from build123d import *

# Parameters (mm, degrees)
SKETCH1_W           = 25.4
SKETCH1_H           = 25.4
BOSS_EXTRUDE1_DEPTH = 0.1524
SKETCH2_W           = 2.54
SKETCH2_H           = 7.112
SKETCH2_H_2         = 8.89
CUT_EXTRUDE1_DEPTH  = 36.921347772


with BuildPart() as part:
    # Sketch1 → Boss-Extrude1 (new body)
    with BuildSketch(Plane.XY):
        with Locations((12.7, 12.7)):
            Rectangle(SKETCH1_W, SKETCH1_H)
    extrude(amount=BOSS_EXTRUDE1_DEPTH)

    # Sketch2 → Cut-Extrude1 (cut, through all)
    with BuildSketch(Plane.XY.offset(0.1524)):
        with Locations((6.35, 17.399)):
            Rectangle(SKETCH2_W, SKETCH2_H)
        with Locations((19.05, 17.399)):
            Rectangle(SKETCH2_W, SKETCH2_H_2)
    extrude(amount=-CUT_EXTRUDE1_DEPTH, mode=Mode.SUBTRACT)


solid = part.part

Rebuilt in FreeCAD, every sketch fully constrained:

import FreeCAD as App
import Part
import Sketcher
from FreeCAD import Vector
Q = App.Units.Quantity

doc = App.newDocument("Part")
params = doc.addObject("Spreadsheet::Sheet", "Params")
for row, (alias, value) in enumerate([
    ("sketch1_width", "1 in"),
    ("pad1_length", "0.006 in"),
    ("sketch2_width", "0.1 in"),
    ("sketch2_height", "0.28 in"),
    ("sketch2_height2", "0.35 in"),
], start=1):
    params.set(f"A{row}", alias)
    params.set(f"B{row}", "=" + value)
    params.setAlias(f"B{row}", alias)

body = doc.addObject("PartDesign::Body", "Body")

sketch1 = doc.addObject("Sketcher::SketchObject", "Sketch")
body.addObject(sketch1)
sketch1.AttachmentSupport = (doc.XY_Plane, [""])
sketch1.MapMode = "FlatFace"
sketch1.addGeometry([
    Part.LineSegment(Vector(0, 25, 0), Vector(0, 0, 0)),
    Part.LineSegment(Vector(0, 0, 0), Vector(25, 0, 0)),
    Part.LineSegment(Vector(25, 0, 0), Vector(25, 25, 0)),
    Part.LineSegment(Vector(25, 25, 0), Vector(0, 25, 0)),
], False)
sketch1.addConstraint([
    Sketcher.Constraint("Coincident", 0, 2, 1, 1),
    Sketcher.Constraint("Coincident", 1, 2, 2, 1),
    Sketcher.Constraint("Coincident", 2, 2, 3, 1),
    Sketcher.Constraint("Coincident", 3, 2, 0, 1),
    Sketcher.Constraint("Vertical", 0),
    Sketcher.Constraint("Horizontal", 1),
    Sketcher.Constraint("Vertical", 2),
    Sketcher.Constraint("Horizontal", 3),
    Sketcher.Constraint("Coincident", 0, 2, -1, 1),
    Sketcher.Constraint("Equal", 3, 0),
    Sketcher.Constraint("DistanceX", 1, 1, 1, 2, Q("1 in")),
])
sketch1.setExpression("Constraints[10]", "Params.sketch1_width")
pad1 = doc.addObject("PartDesign::Pad", "Pad")
body.addObject(pad1)
pad1.Profile = sketch1
pad1.setExpression("Length", "Params.pad1_length")

sketch2 = doc.addObject("Sketcher::SketchObject", "Sketch001")
body.addObject(sketch2)
sketch2.AttachmentSupport = (doc.XY_Plane, [""])
sketch2.MapMode = "FlatFace"
sketch2.AttachmentOffset = App.Placement(Vector(0, 0, 0.006 * 25.4), App.Rotation())
sketch2.addGeometry([
    Part.LineSegment(Vector(5.1, 21, 0), Vector(5.1, 13.8, 0)),
    Part.LineSegment(Vector(5.1, 13.8, 0), Vector(7.6, 13.8, 0)),
    Part.LineSegment(Vector(7.6, 13.8, 0), Vector(7.6, 21, 0)),
    Part.LineSegment(Vector(7.6, 21, 0), Vector(5.1, 21, 0)),
    Part.LineSegment(Vector(17.8, 21.8, 0), Vector(17.8, 13, 0)),
    Part.LineSegment(Vector(17.8, 13, 0), Vector(20.3, 13, 0)),
    Part.LineSegment(Vector(20.3, 13, 0), Vector(20.3, 21.8, 0)),
    Part.LineSegment(Vector(20.3, 21.8, 0), Vector(17.8, 21.8, 0)),
], False)
sketch2.addConstraint([
    Sketcher.Constraint("Coincident", 0, 2, 1, 1),
    Sketcher.Constraint("Coincident", 1, 2, 2, 1),
    Sketcher.Constraint("Coincident", 2, 2, 3, 1),
    Sketcher.Constraint("Coincident", 3, 2, 0, 1),
    Sketcher.Constraint("Coincident", 4, 2, 5, 1),
    Sketcher.Constraint("Coincident", 5, 2, 6, 1),
    Sketcher.Constraint("Coincident", 6, 2, 7, 1),
    Sketcher.Constraint("Coincident", 7, 2, 4, 1),
    Sketcher.Constraint("Vertical", 0),
    Sketcher.Constraint("Horizontal", 1),
    Sketcher.Constraint("Vertical", 2),
    Sketcher.Constraint("Horizontal", 3),
    Sketcher.Constraint("Vertical", 4),
    Sketcher.Constraint("Horizontal", 5),
    Sketcher.Constraint("Vertical", 6),
    Sketcher.Constraint("Horizontal", 7),
    Sketcher.Constraint("Equal", 3, 5),
    Sketcher.Constraint("DistanceX", 1, 1, 1, 2, Q("0.1 in")),
    Sketcher.Constraint("DistanceY", 0, 2, 0, 1, Q("0.28 in")),
    Sketcher.Constraint("DistanceY", 4, 2, 4, 1, Q("0.35 in")),
    Sketcher.Constraint("DistanceX", -1, 1, 0, 2, Q("0.2 in")),
    Sketcher.Constraint("DistanceX", -1, 1, 4, 2, Q("0.7 in")),
    Sketcher.Constraint("DistanceY", -1, 1, 4, 2, Q("0.51 in")),
    Sketcher.Constraint("DistanceY", -1, 1, 0, 2, Q("0.545 in")),
])
sketch2.setExpression("Constraints[17]", "Params.sketch2_width")
sketch2.setExpression("Constraints[18]", "Params.sketch2_height")
sketch2.setExpression("Constraints[19]", "Params.sketch2_height2")
pocket1 = doc.addObject("PartDesign::Pocket", "Pocket")
body.addObject(pocket1)
pocket1.Profile = sketch2
pocket1.Type = "ThroughAll"

doc.recompute()
